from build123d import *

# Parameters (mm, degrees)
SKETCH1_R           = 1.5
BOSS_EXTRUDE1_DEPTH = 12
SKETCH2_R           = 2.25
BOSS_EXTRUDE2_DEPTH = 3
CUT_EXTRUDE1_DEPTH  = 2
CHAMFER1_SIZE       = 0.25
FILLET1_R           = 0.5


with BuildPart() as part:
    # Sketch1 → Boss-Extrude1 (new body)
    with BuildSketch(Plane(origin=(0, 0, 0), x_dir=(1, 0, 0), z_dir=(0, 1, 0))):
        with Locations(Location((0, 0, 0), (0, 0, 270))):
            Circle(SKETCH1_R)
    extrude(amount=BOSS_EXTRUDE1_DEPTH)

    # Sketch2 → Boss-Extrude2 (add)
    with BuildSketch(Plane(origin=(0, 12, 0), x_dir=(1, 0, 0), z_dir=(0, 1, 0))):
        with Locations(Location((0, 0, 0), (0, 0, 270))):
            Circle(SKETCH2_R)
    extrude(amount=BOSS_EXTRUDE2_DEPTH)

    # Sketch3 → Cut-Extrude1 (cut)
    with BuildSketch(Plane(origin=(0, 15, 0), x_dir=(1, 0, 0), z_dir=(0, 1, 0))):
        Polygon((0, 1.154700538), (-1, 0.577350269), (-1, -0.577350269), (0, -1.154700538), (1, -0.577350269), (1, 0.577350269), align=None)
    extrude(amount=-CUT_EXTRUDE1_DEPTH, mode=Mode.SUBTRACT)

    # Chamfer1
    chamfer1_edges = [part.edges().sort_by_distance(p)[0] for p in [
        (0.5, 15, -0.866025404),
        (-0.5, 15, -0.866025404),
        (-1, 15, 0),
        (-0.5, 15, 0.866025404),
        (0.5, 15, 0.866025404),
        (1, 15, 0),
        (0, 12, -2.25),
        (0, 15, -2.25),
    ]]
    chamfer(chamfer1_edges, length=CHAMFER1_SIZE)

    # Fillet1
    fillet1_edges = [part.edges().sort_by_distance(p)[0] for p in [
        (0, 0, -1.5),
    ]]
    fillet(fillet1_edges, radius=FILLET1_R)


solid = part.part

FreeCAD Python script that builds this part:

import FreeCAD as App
import Part
import Sketcher
from FreeCAD import Vector
Q = App.Units.Quantity


def edges_at(feature, points):
    """Names of the edges that pass closest to the given points."""
    edges = feature.Shape.Edges
    near = lambda p: min(range(len(edges)), key=lambda i: edges[i].distToShape(Part.Vertex(*p))[0])
    return sorted({f"Edge{near(p) + 1}" for p in points})

doc = App.newDocument("Part")
body = doc.addObject("PartDesign::Body", "Body")

# Sketch on XZ plane
sketch1 = doc.addObject("Sketcher::SketchObject", "Sketch")
body.addObject(sketch1)
sketch1.AttachmentSupport = (doc.XZ_Plane, [""])
sketch1.MapMode = "FlatFace"
sketch1.addGeometry(Part.Circle(Vector(0, 0, 0), Vector(0, 0, 1), 1.5), False)
sketch1.addConstraint([
    Sketcher.Constraint("Coincident", 0, 3, -1, 1),
    Sketcher.Constraint("Diameter", 0, Q("3 mm")),
])
pad1 = doc.addObject("PartDesign::Pad", "Pad")
body.addObject(pad1)
pad1.Profile = sketch1
pad1.Length = 12
pad1.Reversed = True

# Sketch on XZ plane
sketch2 = doc.addObject("Sketcher::SketchObject", "Sketch001")
body.addObject(sketch2)
sketch2.AttachmentSupport = (doc.XZ_Plane, [""])
sketch2.MapMode = "FlatFace"
sketch2.AttachmentOffset = App.Placement(Vector(0, 0, -12), App.Rotation())
sketch2.addGeometry(Part.Circle(Vector(0, 0, 0), Vector(0, 0, 1), 2.2), False)
sketch2.addConstraint([
    Sketcher.Constraint("Coincident", 0, 3, -1, 1),
    Sketcher.Constraint("Diameter", 0, Q("4.5 mm")),
])
pad2 = doc.addObject("PartDesign::Pad", "Pad001")
body.addObject(pad2)
pad2.Profile = sketch2
pad2.Length = 3
pad2.Reversed = True

# Sketch on XZ plane
sketch3 = doc.addObject("Sketcher::SketchObject", "Sketch002")
body.addObject(sketch3)
sketch3.AttachmentSupport = (doc.XZ_Plane, [""])
sketch3.MapMode = "FlatFace"
sketch3.AttachmentOffset = App.Placement(Vector(0, 0, -15), App.Rotation())
sketch3.addGeometry([
    Part.LineSegment(Vector(0, -1.2, 0), Vector(-1, -0.6, 0)),  # 0
    Part.LineSegment(Vector(-1, -0.6, 0), Vector(-1, 0.6, 0)),  # 1
    Part.LineSegment(Vector(-1, 0.6, 0), Vector(0, 1.2, 0)),  # 2
    Part.LineSegment(Vector(0, 1.2, 0), Vector(1, 0.6, 0)),  # 3
    Part.LineSegment(Vector(1, 0.6, 0), Vector(1, -0.6, 0)),  # 4
    Part.LineSegment(Vector(1, -0.6, 0), Vector(0, -1.2, 0)),  # 5
], False)
sketch3.addConstraint([
    Sketcher.Constraint("Coincident", 0, 2, 1, 1),
    Sketcher.Constraint("Coincident", 1, 2, 2, 1),
    Sketcher.Constraint("Coincident", 2, 2, 3, 1),
    Sketcher.Constraint("Coincident", 3, 2, 4, 1),
    Sketcher.Constraint("Coincident", 4, 2, 5, 1),
    Sketcher.Constraint("Coincident", 5, 2, 0, 1),
    Sketcher.Constraint("Vertical", 1),
    Sketcher.Constraint("Vertical", 4),
    Sketcher.Constraint("Symmetric", 0, 2, 3, 2, -1, 1),
    Sketcher.Constraint("Symmetric", 2, 2, 5, 2, -1, 1),
    Sketcher.Constraint("PointOnObject", 2, 2, -2),
    Sketcher.Constraint("Parallel", 2, 5),
    Sketcher.Constraint("Horizontal", 1, 2, 3, 2),
    Sketcher.Constraint("Angle", 0, Q("150 deg")),
    Sketcher.Constraint("DistanceX", 0, 2, -1, 1, Q("1 mm")),
    Sketcher.Constraint("DistanceY", 1, 1, 1, 2, Q("1.154701 mm")),
])
pocket1 = doc.addObject("PartDesign::Pocket", "Pocket")
body.addObject(pocket1)
pocket1.Profile = sketch3
pocket1.Length = 2
pocket1.Reversed = True
doc.recompute()

chamfer = doc.addObject("PartDesign::Chamfer", "Chamfer")
body.addObject(chamfer)
chamfer.Base = (pocket1, edges_at(pocket1, [
    (0.5, 15, -0.866),
    (-0.5, 15, -0.866),
    (-1, 15, 0),
    (-0.5, 15, 0.866),
    (0.5, 15, 0.866),
    (1, 15, 0),
    (0, 12, -2.25),
    (0, 15, -2.25),
]))
chamfer.Size = 0.25
doc.recompute()

fillet = doc.addObject("PartDesign::Fillet", "Fillet")
body.addObject(fillet)
fillet.Base = (chamfer, edges_at(chamfer, [(0, 0, -1.5)]))
fillet.Radius = 0.5

doc.recompute()
